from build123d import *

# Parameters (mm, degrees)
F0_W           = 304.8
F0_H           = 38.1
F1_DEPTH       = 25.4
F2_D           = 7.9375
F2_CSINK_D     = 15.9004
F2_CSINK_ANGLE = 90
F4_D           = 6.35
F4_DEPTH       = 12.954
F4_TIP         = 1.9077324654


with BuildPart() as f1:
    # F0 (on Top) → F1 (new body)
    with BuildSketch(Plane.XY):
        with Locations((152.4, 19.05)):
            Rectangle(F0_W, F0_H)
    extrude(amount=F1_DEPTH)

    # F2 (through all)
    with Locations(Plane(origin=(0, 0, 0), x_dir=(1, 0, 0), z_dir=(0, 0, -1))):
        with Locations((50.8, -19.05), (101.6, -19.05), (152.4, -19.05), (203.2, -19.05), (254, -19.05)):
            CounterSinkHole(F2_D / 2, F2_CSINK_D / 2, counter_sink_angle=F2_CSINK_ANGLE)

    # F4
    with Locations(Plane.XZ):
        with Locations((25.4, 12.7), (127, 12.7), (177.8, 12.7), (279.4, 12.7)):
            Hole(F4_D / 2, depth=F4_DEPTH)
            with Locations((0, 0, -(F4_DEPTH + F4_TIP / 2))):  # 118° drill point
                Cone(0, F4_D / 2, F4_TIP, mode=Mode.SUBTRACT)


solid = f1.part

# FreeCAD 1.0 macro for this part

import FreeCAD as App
import Part
import Sketcher

V = App.Vector
Q = App.Units.Quantity

doc = App.newDocument("Part")
body = doc.addObject("PartDesign::Body", "Body")

# Sketch on XY plane
sketch1 = body.newObject("Sketcher::SketchObject", "Sketch")
sketch1.AttachmentSupport = (doc.getObject("XY_Plane"), [""])
sketch1.MapMode = "FlatFace"
sketch1.addGeometry([
    Part.LineSegment(V(0, 38.1, 0), V(0, 0, 0)),
    Part.LineSegment(V(0, 0, 0), V(304.8, 0, 0)),
    Part.LineSegment(V(304.8, 0, 0), V(304.8, 38.1, 0)),
    Part.LineSegment(V(304.8, 38.1, 0), V(0, 38.1, 0)),
], False)
sketch1.addConstraint([
    Sketcher.Constraint("Coincident", 0, 2, 1, 1),
    Sketcher.Constraint("Coincident", 1, 2, 2, 1),
    Sketcher.Constraint("Coincident", 2, 2, 3, 1),
    Sketcher.Constraint("Coincident", 3, 2, 0, 1),
    Sketcher.Constraint("Vertical", 0),
    Sketcher.Constraint("Horizontal", 1),
    Sketcher.Constraint("Vertical", 2),
    Sketcher.Constraint("Horizontal", 3),
    Sketcher.Constraint("Coincident", 0, 2, -1, 1),
    Sketcher.Constraint("DistanceX", 1, 1, 1, 2, Q("12 in")),
    Sketcher.Constraint("DistanceY", 0, 2, 0, 1, Q("1.5 in")),
])
pad1 = body.newObject("PartDesign::Pad", "Pad")
pad1.Profile = sketch1
pad1.Length = Q("1 in")

# Sketch on XY plane
sketch2 = body.newObject("Sketcher::SketchObject", "Sketch001")
sketch2.AttachmentSupport = (doc.getObject("XY_Plane"), [""])
sketch2.MapMode = "FlatFace"
sketch2.addGeometry([
    Part.Circle(V(50.8, 19.05, 0), V(0, 0, 1), 3.96875),  # 0
    Part.Circle(V(101.6, 19.05, 0), V(0, 0, 1), 3.96875),  # 1
    Part.Circle(V(152.4, 19.05, 0), V(0, 0, 1), 3.96875),  # 2
    Part.Circle(V(203.2, 19.05, 0), V(0, 0, 1), 3.96875),  # 3
    Part.Circle(V(254, 19.05, 0), V(0, 0, 1), 3.96875),  # 4
], False)
sketch2.addConstraint([
    Sketcher.Constraint("Equal", 0, 1),
    Sketcher.Constraint("Equal", 1, 2),
    Sketcher.Constraint("Equal", 2, 3),
    Sketcher.Constraint("Equal", 3, 4),
    Sketcher.Constraint("Horizontal", 0, 3, 1, 3),
    Sketcher.Constraint("Horizontal", 1, 3, 2, 3),
    Sketcher.Constraint("Horizontal", 2, 3, 3, 3),
    Sketcher.Constraint("Horizontal", 3, 3, 4, 3),
    Sketcher.Constraint("Diameter", 0, Q("0.3125 in")),
    Sketcher.Constraint("DistanceX", -1, 1, 0, 3, Q("2 in")),
    Sketcher.Constraint("DistanceX", -1, 1, 1, 3, Q("4 in")),
    Sketcher.Constraint("DistanceX", -1, 1, 2, 3, Q("6 in")),
    Sketcher.Constraint("DistanceX", -1, 1, 3, 3, Q("8 in")),
    Sketcher.Constraint("DistanceX", -1, 1, 4, 3, Q("10 in")),
    Sketcher.Constraint("DistanceY", -1, 1, 0, 3, Q("0.75 in")),
])
doc.recompute()
hole = body.newObject("PartDesign::Hole", "Hole")
hole.Profile = sketch2
hole.ThreadType = "None"
hole.Diameter = Q("0.3125 in")
hole.DepthType = "ThroughAll"
hole.HoleCutType = "Countersink"
hole.HoleCutDiameter = Q("0.626 in")
hole.HoleCutCountersinkAngle = 90
hole.Reversed = True

# Sketch on XZ plane
sketch3 = body.newObject("Sketcher::SketchObject", "Sketch002")
sketch3.AttachmentSupport = (doc.getObject("XZ_Plane"), [""])
sketch3.MapMode = "FlatFace"
sketch3.addGeometry([
    Part.Circle(V(25.4, 12.7, 0), V(0, 0, 1), 3.175),
    Part.Circle(V(127, 12.7, 0), V(0, 0, 1), 3.175),
    Part.Circle(V(177.8, 12.7, 0), V(0, 0, 1), 3.175),
    Part.Circle(V(279.4, 12.7, 0), V(0, 0, 1), 3.175),
], False)
sketch3.addConstraint([
    Sketcher.Constraint("Equal", 0, 1),
    Sketcher.Constraint("Equal", 1, 2),
    Sketcher.Constraint("Equal", 2, 3),
    Sketcher.Constraint("Horizontal", 0, 3, 1, 3),
    Sketcher.Constraint("Horizontal", 1, 3, 2, 3),
    Sketcher.Constraint("Horizontal", 2, 3, 3, 3),
    Sketcher.Constraint("Diameter", 0, Q("0.25 in")),
    Sketcher.Constraint("DistanceX", -1, 1, 0, 3, Q("1 in")),
    Sketcher.Constraint("DistanceX", -1, 1, 1, 3, Q("5 in")),
    Sketcher.Constraint("DistanceX", -1, 1, 2, 3, Q("7 in")),
    Sketcher.Constraint("DistanceX", -1, 1, 3, 3, Q("11 in")),
    Sketcher.Constraint("DistanceY", -1, 1, 0, 3, Q("0.5 in")),
])
doc.recompute()
hole2 = body.newObject("PartDesign::Hole", "Hole001")
hole2.Profile = sketch3
hole2.ThreadType = "None"
hole2.Diameter = Q("0.25 in")
hole2.DepthType = "Dimension"
hole2.Depth = Q("0.51 in")
hole2.DrillPoint = "Angled"
hole2.DrillPointAngle = 118

doc.recompute()
